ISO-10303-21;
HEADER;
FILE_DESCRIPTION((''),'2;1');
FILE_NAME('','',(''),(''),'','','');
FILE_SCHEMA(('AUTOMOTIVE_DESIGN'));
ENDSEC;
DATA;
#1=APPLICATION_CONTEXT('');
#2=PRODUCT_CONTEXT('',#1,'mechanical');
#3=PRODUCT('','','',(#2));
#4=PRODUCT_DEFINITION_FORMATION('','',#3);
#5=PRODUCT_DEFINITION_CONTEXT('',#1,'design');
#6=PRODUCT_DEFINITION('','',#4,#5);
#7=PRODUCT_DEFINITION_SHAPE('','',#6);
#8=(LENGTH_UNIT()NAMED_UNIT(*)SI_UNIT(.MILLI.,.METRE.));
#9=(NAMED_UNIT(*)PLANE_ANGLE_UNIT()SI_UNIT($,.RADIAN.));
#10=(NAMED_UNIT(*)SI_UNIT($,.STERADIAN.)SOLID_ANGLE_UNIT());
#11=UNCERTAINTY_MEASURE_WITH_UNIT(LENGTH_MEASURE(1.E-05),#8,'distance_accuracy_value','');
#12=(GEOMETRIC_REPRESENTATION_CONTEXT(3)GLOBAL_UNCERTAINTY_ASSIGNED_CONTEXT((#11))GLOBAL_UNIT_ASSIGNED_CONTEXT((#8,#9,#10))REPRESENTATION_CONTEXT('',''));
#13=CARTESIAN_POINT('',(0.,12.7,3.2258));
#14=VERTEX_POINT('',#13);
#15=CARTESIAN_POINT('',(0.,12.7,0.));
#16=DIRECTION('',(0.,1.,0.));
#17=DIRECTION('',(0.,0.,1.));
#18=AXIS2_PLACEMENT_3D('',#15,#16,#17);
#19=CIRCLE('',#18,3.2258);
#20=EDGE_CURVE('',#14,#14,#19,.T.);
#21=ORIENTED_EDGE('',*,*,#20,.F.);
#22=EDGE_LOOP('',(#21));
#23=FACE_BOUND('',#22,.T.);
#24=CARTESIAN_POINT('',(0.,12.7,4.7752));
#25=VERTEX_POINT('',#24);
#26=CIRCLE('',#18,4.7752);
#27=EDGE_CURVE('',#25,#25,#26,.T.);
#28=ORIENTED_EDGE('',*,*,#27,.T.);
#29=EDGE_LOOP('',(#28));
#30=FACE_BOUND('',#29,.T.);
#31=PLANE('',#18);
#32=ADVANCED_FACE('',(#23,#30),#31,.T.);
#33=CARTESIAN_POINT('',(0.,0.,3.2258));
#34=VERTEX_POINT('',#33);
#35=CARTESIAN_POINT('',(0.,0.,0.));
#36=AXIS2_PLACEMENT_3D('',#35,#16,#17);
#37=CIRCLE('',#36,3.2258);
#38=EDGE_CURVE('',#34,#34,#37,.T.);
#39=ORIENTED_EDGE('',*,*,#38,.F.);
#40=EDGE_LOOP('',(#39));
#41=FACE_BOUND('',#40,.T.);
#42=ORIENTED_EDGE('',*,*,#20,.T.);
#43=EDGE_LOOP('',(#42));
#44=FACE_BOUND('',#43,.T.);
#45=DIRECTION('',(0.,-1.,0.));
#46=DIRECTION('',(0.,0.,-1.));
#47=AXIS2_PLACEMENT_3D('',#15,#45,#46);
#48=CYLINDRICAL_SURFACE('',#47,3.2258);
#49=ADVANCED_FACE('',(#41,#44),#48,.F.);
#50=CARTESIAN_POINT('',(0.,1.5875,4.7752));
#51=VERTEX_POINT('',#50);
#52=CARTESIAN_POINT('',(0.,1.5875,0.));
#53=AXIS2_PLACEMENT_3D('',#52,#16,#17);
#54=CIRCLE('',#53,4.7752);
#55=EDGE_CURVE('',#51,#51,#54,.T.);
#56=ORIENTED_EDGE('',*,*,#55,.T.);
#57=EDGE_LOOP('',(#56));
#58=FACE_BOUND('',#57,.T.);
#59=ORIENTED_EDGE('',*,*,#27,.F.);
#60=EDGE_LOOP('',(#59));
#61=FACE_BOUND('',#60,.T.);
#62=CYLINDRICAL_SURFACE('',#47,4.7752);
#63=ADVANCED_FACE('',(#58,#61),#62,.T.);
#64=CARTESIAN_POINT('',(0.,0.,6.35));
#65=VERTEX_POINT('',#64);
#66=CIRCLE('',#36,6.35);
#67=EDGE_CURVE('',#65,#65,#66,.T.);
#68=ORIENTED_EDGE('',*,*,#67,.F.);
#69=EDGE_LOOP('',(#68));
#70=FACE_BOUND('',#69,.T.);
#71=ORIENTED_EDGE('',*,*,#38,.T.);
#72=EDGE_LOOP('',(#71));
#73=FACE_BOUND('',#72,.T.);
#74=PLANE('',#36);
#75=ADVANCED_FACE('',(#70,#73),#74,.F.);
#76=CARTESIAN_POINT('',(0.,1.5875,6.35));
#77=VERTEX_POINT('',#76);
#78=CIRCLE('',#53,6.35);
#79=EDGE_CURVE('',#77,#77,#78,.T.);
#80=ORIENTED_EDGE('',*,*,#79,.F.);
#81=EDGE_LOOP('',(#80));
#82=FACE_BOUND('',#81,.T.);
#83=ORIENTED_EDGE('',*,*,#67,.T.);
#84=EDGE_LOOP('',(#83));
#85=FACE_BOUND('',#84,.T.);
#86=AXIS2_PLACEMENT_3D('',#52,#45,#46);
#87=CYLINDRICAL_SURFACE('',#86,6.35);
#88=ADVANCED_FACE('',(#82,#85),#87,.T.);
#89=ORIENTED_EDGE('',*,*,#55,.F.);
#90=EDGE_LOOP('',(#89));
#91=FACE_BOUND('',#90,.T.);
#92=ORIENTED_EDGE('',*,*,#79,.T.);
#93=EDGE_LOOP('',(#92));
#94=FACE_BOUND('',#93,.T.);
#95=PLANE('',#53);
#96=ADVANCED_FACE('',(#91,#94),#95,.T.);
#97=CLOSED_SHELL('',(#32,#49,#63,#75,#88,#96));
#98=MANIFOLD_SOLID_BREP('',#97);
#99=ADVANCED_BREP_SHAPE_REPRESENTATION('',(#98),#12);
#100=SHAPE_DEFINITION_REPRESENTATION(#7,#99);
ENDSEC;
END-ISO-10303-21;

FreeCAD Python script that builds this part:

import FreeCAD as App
import Part
import Sketcher
Q = App.Units.Quantity

doc = App.newDocument("Part")
body = doc.addObject("PartDesign::Body", "Body")

# Sketch on XZ plane
sketch1 = doc.addObject("Sketcher::SketchObject", "Sketch")
body.addObject(sketch1)
sketch1.AttachmentSupport = (doc.XZ_Plane, [""])
sketch1.MapMode = "FlatFace"
sketch1.addGeometry([
    Part.Circle(App.Vector(0, 0, 0), App.Vector(0, 0, 1), 4.8),
    Part.Circle(App.Vector(0, 0, 0), App.Vector(0, 0, 1), 3.2),
], False)
sketch1.addConstraint([
    Sketcher.Constraint("Coincident", 0, 3, -1, 1),
    Sketcher.Constraint("Coincident", 1, 3, -1, 1),
    Sketcher.Constraint("Diameter", 0, Q("0.376 in")),
    Sketcher.Constraint("Diameter", 1, Q("0.254 in")),
])
pad1 = doc.addObject("PartDesign::Pad", "Pad")
body.addObject(pad1)
pad1.Profile = sketch1
pad1.Length = Q("0.5 in")
pad1.Reversed = True

# Sketch on XZ plane
sketch2 = doc.addObject("Sketcher::SketchObject", "Sketch001")
body.addObject(sketch2)
sketch2.AttachmentSupport = (doc.XZ_Plane, [""])
sketch2.MapMode = "FlatFace"
sketch2.addGeometry([
    Part.Circle(App.Vector(0, 0, 0), App.Vector(0, 0, 1), 6.3),
    Part.Circle(App.Vector(0, 0, 0), App.Vector(0, 0, 1), 4.8),
], False)
sketch2.addConstraint([
    Sketcher.Constraint("Coincident", 0, 3, -1, 1),
    Sketcher.Constraint("Coincident", 1, 3, -1, 1),
    Sketcher.Constraint("Diameter", 0, Q("0.5 in")),
    Sketcher.Constraint("Diameter", 1, Q("0.376 in")),
])
pad2 = doc.addObject("PartDesign::Pad", "Pad001")
body.addObject(pad2)
pad2.Profile = sketch2
pad2.Length = Q("0.0625 in")
pad2.Reversed = True

doc.recompute()
